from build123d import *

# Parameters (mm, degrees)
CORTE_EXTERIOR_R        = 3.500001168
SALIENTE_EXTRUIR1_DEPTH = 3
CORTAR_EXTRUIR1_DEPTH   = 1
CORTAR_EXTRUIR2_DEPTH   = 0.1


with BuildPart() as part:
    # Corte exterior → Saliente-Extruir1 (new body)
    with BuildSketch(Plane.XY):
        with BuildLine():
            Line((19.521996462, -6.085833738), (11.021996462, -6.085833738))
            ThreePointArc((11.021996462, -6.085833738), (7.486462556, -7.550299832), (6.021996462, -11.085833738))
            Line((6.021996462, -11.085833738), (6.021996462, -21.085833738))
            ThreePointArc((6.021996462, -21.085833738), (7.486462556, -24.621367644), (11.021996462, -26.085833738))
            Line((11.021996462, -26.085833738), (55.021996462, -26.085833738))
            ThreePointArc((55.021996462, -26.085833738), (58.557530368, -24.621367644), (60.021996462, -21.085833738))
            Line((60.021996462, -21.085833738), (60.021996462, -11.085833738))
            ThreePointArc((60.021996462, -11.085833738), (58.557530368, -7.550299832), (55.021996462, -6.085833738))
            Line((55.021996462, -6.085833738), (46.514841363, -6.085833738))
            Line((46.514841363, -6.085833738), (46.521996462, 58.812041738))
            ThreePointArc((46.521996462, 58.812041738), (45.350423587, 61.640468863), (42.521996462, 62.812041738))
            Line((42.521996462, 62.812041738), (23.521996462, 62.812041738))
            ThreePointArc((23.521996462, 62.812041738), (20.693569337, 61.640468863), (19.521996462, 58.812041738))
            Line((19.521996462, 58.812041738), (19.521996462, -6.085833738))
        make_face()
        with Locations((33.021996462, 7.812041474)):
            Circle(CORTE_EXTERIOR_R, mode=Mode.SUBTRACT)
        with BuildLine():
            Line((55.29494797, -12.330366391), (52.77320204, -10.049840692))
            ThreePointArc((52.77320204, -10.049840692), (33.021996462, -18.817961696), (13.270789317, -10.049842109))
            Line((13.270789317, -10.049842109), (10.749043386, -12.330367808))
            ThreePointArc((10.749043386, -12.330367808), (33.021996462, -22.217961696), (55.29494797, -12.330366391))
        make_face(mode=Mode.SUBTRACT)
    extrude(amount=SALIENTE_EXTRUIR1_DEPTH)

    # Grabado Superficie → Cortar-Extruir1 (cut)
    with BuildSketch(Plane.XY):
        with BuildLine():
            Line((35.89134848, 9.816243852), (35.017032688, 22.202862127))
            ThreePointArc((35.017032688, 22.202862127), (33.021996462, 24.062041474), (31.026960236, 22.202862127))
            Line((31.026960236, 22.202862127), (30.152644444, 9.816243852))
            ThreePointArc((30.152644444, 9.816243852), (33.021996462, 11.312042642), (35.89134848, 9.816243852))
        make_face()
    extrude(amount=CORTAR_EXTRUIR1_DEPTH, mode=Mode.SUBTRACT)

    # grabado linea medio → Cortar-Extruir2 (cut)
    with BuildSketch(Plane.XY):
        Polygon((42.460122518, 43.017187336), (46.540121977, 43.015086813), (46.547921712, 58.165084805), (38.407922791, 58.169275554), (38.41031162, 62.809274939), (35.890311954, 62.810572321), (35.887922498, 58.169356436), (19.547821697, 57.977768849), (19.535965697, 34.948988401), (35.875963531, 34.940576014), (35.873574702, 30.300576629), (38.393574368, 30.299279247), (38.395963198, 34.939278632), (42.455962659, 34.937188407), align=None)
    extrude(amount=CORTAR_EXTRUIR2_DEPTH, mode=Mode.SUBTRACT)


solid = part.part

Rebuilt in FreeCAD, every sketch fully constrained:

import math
import FreeCAD as App
import Part
import Sketcher

V = App.Vector
Q = App.Units.Quantity


def add_polygon(sketch, points):
    """Adds a closed chain of lines whose ends are joined by coincident constraints."""
    first, n = sketch.GeometryCount, len(points)
    for a, b in zip(points, points[1:] + points[:1]):
        sketch.addGeometry(Part.LineSegment(App.Vector(*a, 0), App.Vector(*b, 0)), False)
    for i in range(n):
        sketch.addConstraint(Sketcher.Constraint("Coincident", first + i, 2, first + (i + 1) % n, 1))

doc = App.newDocument("Part")
body = doc.addObject("PartDesign::Body", "Body")

# Sketch on XY plane
sketch1 = doc.addObject("Sketcher::SketchObject", "Sketch")
body.addObject(sketch1)
sketch1.AttachmentSupport = (doc.XY_Plane, [""])
sketch1.MapMode = "FlatFace"
sketch1.addGeometry(Part.LineSegment(V(19.5, -6.1, 0), V(11, -6.1, 0)), False)
sketch1.addGeometry(Part.ArcOfCircle(Part.Circle(V(11, -11.1, 0), V(0, 0, 1), 5), math.radians(90), math.radians(180)), False)
sketch1.addGeometry(Part.LineSegment(V(6, -11.1, 0), V(6, -21.1, 0)), False)
sketch1.addGeometry(Part.ArcOfCircle(Part.Circle(V(11, -21.1, 0), V(0, 0, 1), 5), math.radians(180), math.radians(270)), False)
sketch1.addGeometry(Part.LineSegment(V(11, -26.1, 0), V(55, -26.1, 0)), False)
sketch1.addGeometry(Part.ArcOfCircle(Part.Circle(V(55, -21.1, 0), V(0, 0, 1), 5), math.radians(-90), math.radians(0)), False)
sketch1.addGeometry(Part.LineSegment(V(60, -21.1, 0), V(60, -11.1, 0)), False)
sketch1.addGeometry(Part.ArcOfCircle(Part.Circle(V(55, -11.1, 0), V(0, 0, 1), 5), math.radians(0), math.radians(90)), False)
sketch1.addGeometry(Part.LineSegment(V(55, -6.1, 0), V(46.5, -6.1, 0)), False)
sketch1.addGeometry(Part.LineSegment(V(46.5, -6.1, 0), V(46.5, 58.8, 0)), False)
sketch1.addGeometry(Part.ArcOfCircle(Part.Circle(V(42.5, 58.8, 0), V(0, 0, 1), 4), math.radians(0), math.radians(90)), False)
sketch1.addGeometry(Part.LineSegment(V(42.5, 62.8, 0), V(23.5, 62.8, 0)), False)
sketch1.addGeometry(Part.ArcOfCircle(Part.Circle(V(23.5, 58.8, 0), V(0, 0, 1), 4), math.radians(90), math.radians(180)), False)
sketch1.addGeometry(Part.LineSegment(V(19.5, 58.8, 0), V(19.5, -6.1, 0)), False)
sketch1.addGeometry(Part.LineSegment(V(52.8, -10, 0), V(55.3, -12.3, 0)), False)
sketch1.addGeometry(Part.ArcOfCircle(Part.Circle(V(33, 7.8, 0), V(0, 0, 1), 30), math.radians(-138), math.radians(-42)), False)
sketch1.addGeometry(Part.LineSegment(V(10.7, -12.3, 0), V(13.3, -10, 0)), False)
sketch1.addGeometry(Part.ArcOfCircle(Part.Circle(V(33, 7.8, 0), V(0, 0, 1), 26.6), math.radians(-138), math.radians(-42)), False)
sketch1.addGeometry(Part.Circle(V(33, 7.8, 0), V(0, 0, 1), 3.5), False)
sketch1.addConstraint(Sketcher.Constraint("Tangent", 0, 2, 1, 1))
sketch1.addConstraint(Sketcher.Constraint("Tangent", 1, 2, 2, 1))
sketch1.addConstraint(Sketcher.Constraint("Tangent", 2, 2, 3, 1))
sketch1.addConstraint(Sketcher.Constraint("Tangent", 3, 2, 4, 1))
sketch1.addConstraint(Sketcher.Constraint("Tangent", 4, 2, 5, 1))
sketch1.addConstraint(Sketcher.Constraint("Tangent", 5, 2, 6, 1))
sketch1.addConstraint(Sketcher.Constraint("Tangent", 6, 2, 7, 1))
sketch1.addConstraint(Sketcher.Constraint("Tangent", 7, 2, 8, 1))
sketch1.addConstraint(Sketcher.Constraint("Coincident", 8, 2, 9, 1))
sketch1.addConstraint(Sketcher.Constraint("Coincident", 9, 2, 10, 1))
sketch1.addConstraint(Sketcher.Constraint("Tangent", 10, 2, 11, 1))
sketch1.addConstraint(Sketcher.Constraint("Tangent", 11, 2, 12, 1))
sketch1.addConstraint(Sketcher.Constraint("Tangent", 12, 2, 13, 1))
sketch1.addConstraint(Sketcher.Constraint("Coincident", 13, 2, 0, 1))
sketch1.addConstraint(Sketcher.Constraint("Coincident", 14, 2, 15, 2))
sketch1.addConstraint(Sketcher.Constraint("Coincident", 15, 1, 16, 1))
sketch1.addConstraint(Sketcher.Constraint("Coincident", 16, 2, 17, 1))
sketch1.addConstraint(Sketcher.Constraint("Coincident", 17, 2, 14, 1))
sketch1.addConstraint(Sketcher.Constraint("Horizontal", 0))
sketch1.addConstraint(Sketcher.Constraint("Vertical", 2))
sketch1.addConstraint(Sketcher.Constraint("Horizontal", 4))
sketch1.addConstraint(Sketcher.Constraint("Vertical", 6))
sketch1.addConstraint(Sketcher.Constraint("Horizontal", 8))
sketch1.addConstraint(Sketcher.Constraint("Horizontal", 11))
sketch1.addConstraint(Sketcher.Constraint("Vertical", 13))
sketch1.addConstraint(Sketcher.Constraint("Coincident", 17, 3, 15, 3))
sketch1.addConstraint(Sketcher.Constraint("Coincident", 18, 3, 15, 3))
sketch1.addConstraint(Sketcher.Constraint("Equal", 1, 3))
sketch1.addConstraint(Sketcher.Constraint("Equal", 3, 5))
sketch1.addConstraint(Sketcher.Constraint("Equal", 5, 7))
sketch1.addConstraint(Sketcher.Constraint("Equal", 10, 12))
sketch1.addConstraint(Sketcher.Constraint("Horizontal", 1, 3, 7, 3))
sketch1.addConstraint(Sketcher.Constraint("Horizontal", 12, 3, 9, 2))
sketch1.addConstraint(Sketcher.Constraint("Horizontal", 14, 2, 15, 1))
sketch1.addConstraint(Sketcher.Constraint("Horizontal", 16, 2, 17, 2))
sketch1.addConstraint(Sketcher.Constraint("Radius", 1, Q("5 mm")))
sketch1.addConstraint(Sketcher.Constraint("Radius", 10, Q("4 mm")))
sketch1.addConstraint(Sketcher.Constraint("DistanceX", 4, 1, 4, 2, Q("44 mm")))
sketch1.addConstraint(Sketcher.Constraint("DistanceX", 11, 2, 11, 1, Q("19 mm")))
sketch1.addConstraint(Sketcher.Constraint("DistanceY", 2, 2, 2, 1, Q("10 mm")))
sketch1.addConstraint(Sketcher.Constraint("Radius", 15, Q("30.03 mm")))
sketch1.addConstraint(Sketcher.Constraint("Radius", 17, Q("26.63 mm")))
sketch1.addConstraint(Sketcher.Constraint("DistanceX", 0, 2, 0, 1, Q("8.5 mm")))
sketch1.addConstraint(Sketcher.Constraint("DistanceX", 1, 3, 15, 3, Q("21.999999 mm")))
sketch1.addConstraint(Sketcher.Constraint("DistanceY", 18, 3, 9, 2, Q("51 mm")))
sketch1.addConstraint(Sketcher.Constraint("Diameter", 18, Q("7.000002 mm")))
sketch1.addConstraint(Sketcher.Constraint("DistanceX", 8, 2, 8, 1, Q("8.507155 mm")))
sketch1.addConstraint(Sketcher.Constraint("DistanceY", 13, 2, 13, 1, Q("64.897875 mm")))
sketch1.addConstraint(Sketcher.Constraint("DistanceY", -1, 1, 10, 3, Q("58.812042 mm")))
sketch1.addConstraint(Sketcher.Constraint("DistanceX", -1, 1, 8, 2, Q("46.514841 mm")))
sketch1.addConstraint(Sketcher.Constraint("DistanceX", -1, 1, 16, 2, Q("13.270789 mm")))
sketch1.addConstraint(Sketcher.Constraint("DistanceX", 7, 3, 14, 2, Q("0.272952 mm")))
pad1 = doc.addObject("PartDesign::Pad", "Pad")
body.addObject(pad1)
pad1.Profile = sketch1
pad1.Length = 3

# Sketch on XY plane
sketch2 = doc.addObject("Sketcher::SketchObject", "Sketch001")
body.addObject(sketch2)
sketch2.AttachmentSupport = (doc.XY_Plane, [""])
sketch2.MapMode = "FlatFace"
sketch2.addGeometry(Part.LineSegment(V(35.9, 9.8, 0), V(35, 22.2, 0)), False)
sketch2.addGeometry(Part.ArcOfCircle(Part.Circle(V(33, 22.1, 0), V(0, 0, 1), 2), math.radians(4), math.radians(176)), False)
sketch2.addGeometry(Part.LineSegment(V(31, 22.2, 0), V(30.2, 9.8, 0)), False)
sketch2.addGeometry(Part.ArcOfCircle(Part.Circle(V(33, 7.8, 0), V(0, 0, 1), 3.5), math.radians(35), math.radians(145)), False)
sketch2.addConstraint(Sketcher.Constraint("Tangent", 0, 2, 1, 1))
sketch2.addConstraint(Sketcher.Constraint("Tangent", 1, 2, 2, 1))
sketch2.addConstraint(Sketcher.Constraint("Coincident", 2, 2, 3, 2))
sketch2.addConstraint(Sketcher.Constraint("Coincident", 3, 1, 0, 1))
sketch2.addConstraint(Sketcher.Constraint("Horizontal", 0, 2, 1, 2))
sketch2.addConstraint(Sketcher.Constraint("Horizontal", 2, 2, 3, 1))
sketch2.addConstraint(Sketcher.Constraint("Radius", 1, Q("2 mm")))
sketch2.addConstraint(Sketcher.Constraint("Radius", 3, Q("3.500001 mm")))
sketch2.addConstraint(Sketcher.Constraint("DistanceY", 3, 3, 1, 3, Q("14.25 mm")))
sketch2.addConstraint(Sketcher.Constraint("DistanceY", -1, 1, 1, 3, Q("22.062041 mm")))
sketch2.addConstraint(Sketcher.Constraint("DistanceX", -1, 1, 1, 2, Q("31.02696 mm")))
sketch2.addConstraint(Sketcher.Constraint("DistanceX", -1, 1, 3, 1, Q("35.891348 mm")))
pocket1 = doc.addObject("PartDesign::Pocket", "Pocket")
body.addObject(pocket1)
pocket1.Profile = sketch2
pocket1.Length = 1
pocket1.Reversed = True

# Sketch on XY plane
sketch3 = doc.addObject("Sketcher::SketchObject", "Sketch002")
body.addObject(sketch3)
sketch3.AttachmentSupport = (doc.XY_Plane, [""])
sketch3.MapMode = "FlatFace"
add_polygon(sketch3, [(42.5, 43), (46.5, 43), (46.5, 58.2), (38.4, 58.2), (38.4, 62.8), (35.9, 62.8), (35.9, 58.2), (19.5, 58), (19.5, 34.9), (35.9, 34.9), (35.9, 30.3), (38.4, 30.3), (38.4, 34.9), (42.5, 34.9)])  # lines 0-13
sketch3.addConstraint(Sketcher.Constraint("Perpendicular", 0, 1))
sketch3.addConstraint(Sketcher.Constraint("Perpendicular", 1, 2))
sketch3.addConstraint(Sketcher.Constraint("Perpendicular", 2, 3))
sketch3.addConstraint(Sketcher.Constraint("Perpendicular", 3, 4))
sketch3.addConstraint(Sketcher.Constraint("Perpendicular", 4, 5))
sketch3.addConstraint(Sketcher.Constraint("Parallel", 5, 7))
sketch3.addConstraint(Sketcher.Constraint("Perpendicular", 7, 8))
sketch3.addConstraint(Sketcher.Constraint("Perpendicular", 8, 9))
sketch3.addConstraint(Sketcher.Constraint("Perpendicular", 9, 10))
sketch3.addConstraint(Sketcher.Constraint("Perpendicular", 10, 11))
sketch3.addConstraint(Sketcher.Constraint("Perpendicular", 11, 12))
sketch3.addConstraint(Sketcher.Constraint("Perpendicular", 12, 13))
sketch3.addConstraint(Sketcher.Constraint("Equal", 3, 9))
sketch3.addConstraint(Sketcher.Constraint("Equal", 4, 10))
sketch3.addConstraint(Sketcher.Constraint("Equal", 9, 11))
sketch3.addConstraint(Sketcher.Constraint("Distance", 0, Q("4.08 mm")))
sketch3.addConstraint(Sketcher.Constraint("Distance", 1, Q("15.15 mm")))
sketch3.addConstraint(Sketcher.Constraint("Distance", 2, Q("8.14 mm")))
sketch3.addConstraint(Sketcher.Constraint("Distance", 3, Q("4.64 mm")))
sketch3.addConstraint(Sketcher.Constraint("Distance", 4, Q("2.52 mm")))
sketch3.addConstraint(Sketcher.Constraint("Distance", 8, Q("16.34 mm")))
sketch3.addConstraint(Sketcher.Constraint("Distance", 12, Q("4.06 mm")))
sketch3.addConstraint(Sketcher.Constraint("Distance", 13, Q("8.08 mm")))
sketch3.addConstraint(Sketcher.Constraint("DistanceX", 0, 2, 1, 2, Q("0.0078 mm")))
sketch3.addConstraint(Sketcher.Constraint("DistanceX", -1, 1, 0, 2, Q("46.540122 mm")))
sketch3.addConstraint(Sketcher.Constraint("DistanceY", -1, 1, 6, 2, Q("57.977769 mm")))
sketch3.addConstraint(Sketcher.Constraint("DistanceY", -1, 1, 7, 2, Q("34.948988 mm")))
sketch3.addConstraint(Sketcher.Constraint("DistanceY", 5, 2, 3, 2, Q("4.639919 mm")))
pocket2 = doc.addObject("PartDesign::Pocket", "Pocket001")
body.addObject(pocket2)
pocket2.Profile = sketch3
pocket2.Length = 0.1
pocket2.Reversed = True

doc.recompute()
